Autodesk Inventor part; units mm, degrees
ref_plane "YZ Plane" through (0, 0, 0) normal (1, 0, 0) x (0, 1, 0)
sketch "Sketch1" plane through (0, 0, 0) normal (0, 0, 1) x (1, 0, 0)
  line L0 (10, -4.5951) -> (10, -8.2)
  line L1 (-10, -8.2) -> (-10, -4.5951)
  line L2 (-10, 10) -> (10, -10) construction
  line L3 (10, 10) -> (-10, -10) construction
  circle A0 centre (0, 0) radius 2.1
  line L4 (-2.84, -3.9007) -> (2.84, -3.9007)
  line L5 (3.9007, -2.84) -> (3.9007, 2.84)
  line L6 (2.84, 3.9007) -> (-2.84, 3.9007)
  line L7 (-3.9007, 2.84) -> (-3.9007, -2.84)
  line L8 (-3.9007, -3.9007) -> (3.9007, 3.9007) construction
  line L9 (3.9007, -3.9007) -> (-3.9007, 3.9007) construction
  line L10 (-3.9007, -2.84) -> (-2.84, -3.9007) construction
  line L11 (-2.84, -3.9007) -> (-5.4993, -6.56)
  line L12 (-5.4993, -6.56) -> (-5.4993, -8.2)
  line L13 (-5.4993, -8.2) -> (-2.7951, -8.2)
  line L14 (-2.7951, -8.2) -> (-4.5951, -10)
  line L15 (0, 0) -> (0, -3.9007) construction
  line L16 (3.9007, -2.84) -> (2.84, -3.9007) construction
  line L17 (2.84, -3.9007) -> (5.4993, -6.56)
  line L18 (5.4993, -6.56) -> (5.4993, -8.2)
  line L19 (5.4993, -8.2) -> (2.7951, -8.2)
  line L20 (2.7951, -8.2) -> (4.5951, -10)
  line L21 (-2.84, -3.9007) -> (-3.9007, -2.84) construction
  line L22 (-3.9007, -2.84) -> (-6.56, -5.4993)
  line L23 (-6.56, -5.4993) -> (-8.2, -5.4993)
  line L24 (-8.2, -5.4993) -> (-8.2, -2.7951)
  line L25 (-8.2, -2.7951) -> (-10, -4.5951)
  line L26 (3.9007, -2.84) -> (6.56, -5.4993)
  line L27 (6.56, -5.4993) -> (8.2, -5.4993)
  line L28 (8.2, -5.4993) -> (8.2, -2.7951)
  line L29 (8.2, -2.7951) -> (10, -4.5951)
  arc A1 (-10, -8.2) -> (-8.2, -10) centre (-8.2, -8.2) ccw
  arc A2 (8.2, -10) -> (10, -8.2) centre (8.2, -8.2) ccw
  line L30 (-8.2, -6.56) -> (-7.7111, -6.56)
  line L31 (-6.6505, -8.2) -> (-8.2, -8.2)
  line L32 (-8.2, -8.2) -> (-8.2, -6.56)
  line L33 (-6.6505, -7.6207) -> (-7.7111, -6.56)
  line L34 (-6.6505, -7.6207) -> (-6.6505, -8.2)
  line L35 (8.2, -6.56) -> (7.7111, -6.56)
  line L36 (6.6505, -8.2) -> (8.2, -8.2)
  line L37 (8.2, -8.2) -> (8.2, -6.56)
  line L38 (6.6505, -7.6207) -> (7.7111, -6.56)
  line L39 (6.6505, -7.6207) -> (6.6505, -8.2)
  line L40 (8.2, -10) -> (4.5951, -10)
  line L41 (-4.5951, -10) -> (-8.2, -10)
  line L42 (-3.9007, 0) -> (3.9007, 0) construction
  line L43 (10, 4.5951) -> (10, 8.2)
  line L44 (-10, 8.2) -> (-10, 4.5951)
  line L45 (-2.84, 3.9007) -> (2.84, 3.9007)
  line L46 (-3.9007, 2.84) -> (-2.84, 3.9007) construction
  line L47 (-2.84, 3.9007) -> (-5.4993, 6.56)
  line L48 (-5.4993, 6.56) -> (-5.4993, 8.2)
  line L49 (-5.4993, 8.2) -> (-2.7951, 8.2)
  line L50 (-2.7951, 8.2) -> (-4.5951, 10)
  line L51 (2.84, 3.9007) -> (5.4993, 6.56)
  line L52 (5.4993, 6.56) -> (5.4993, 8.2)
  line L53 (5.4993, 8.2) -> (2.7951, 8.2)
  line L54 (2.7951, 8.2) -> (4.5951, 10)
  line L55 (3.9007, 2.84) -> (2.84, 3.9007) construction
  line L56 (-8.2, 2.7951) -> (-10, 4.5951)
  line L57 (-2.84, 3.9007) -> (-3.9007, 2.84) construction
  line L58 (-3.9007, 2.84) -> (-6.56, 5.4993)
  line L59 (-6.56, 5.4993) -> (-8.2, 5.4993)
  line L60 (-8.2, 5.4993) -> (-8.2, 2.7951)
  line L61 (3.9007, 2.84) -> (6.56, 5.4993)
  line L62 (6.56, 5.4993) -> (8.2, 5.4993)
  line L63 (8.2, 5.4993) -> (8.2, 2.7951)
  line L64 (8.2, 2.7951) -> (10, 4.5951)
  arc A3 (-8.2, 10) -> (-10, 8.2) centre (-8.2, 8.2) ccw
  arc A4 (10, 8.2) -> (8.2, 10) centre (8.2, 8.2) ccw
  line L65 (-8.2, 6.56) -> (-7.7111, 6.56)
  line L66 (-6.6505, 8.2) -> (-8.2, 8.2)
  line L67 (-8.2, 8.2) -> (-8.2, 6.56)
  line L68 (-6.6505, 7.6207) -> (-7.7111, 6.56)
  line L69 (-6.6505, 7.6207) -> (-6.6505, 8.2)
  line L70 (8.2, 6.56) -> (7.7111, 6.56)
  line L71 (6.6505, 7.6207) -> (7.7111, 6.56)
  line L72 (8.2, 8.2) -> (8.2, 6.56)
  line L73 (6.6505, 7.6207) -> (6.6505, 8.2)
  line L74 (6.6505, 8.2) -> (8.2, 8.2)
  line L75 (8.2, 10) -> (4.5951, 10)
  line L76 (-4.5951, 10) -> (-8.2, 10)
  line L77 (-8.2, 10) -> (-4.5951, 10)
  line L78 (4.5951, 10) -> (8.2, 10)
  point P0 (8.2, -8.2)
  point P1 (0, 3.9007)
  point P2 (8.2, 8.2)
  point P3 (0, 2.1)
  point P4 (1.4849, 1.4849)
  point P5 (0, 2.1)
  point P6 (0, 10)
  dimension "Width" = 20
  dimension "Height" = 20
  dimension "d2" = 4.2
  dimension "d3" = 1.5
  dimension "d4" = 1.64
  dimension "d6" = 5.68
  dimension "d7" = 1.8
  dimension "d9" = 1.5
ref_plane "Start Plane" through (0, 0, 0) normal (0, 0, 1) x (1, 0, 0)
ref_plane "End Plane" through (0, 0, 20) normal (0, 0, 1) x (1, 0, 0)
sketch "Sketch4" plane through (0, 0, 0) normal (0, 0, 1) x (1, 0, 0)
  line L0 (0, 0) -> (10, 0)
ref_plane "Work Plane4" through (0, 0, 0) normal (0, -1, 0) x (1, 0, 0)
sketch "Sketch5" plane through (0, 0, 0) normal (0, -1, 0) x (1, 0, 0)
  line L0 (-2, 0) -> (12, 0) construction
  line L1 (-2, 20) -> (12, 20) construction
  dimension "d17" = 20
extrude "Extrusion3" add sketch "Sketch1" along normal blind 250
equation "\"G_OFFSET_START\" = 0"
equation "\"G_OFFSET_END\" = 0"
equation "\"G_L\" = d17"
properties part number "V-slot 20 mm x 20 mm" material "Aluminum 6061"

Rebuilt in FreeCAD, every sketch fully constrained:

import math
import FreeCAD as App
import Part
import Sketcher

V = App.Vector


def add_polygon(sketch, points):
    """Adds a closed chain of lines whose ends are joined by coincident constraints."""
    first, n = sketch.GeometryCount, len(points)
    for a, b in zip(points, points[1:] + points[:1]):
        sketch.addGeometry(Part.LineSegment(App.Vector(*a, 0), App.Vector(*b, 0)), False)
    for i in range(n):
        sketch.addConstraint(Sketcher.Constraint("Coincident", first + i, 2, first + (i + 1) % n, 1))

doc = App.newDocument("Part")
body = doc.addObject("PartDesign::Body", "Body")

# Sketch on XY plane
sketch1 = body.newObject("Sketcher::SketchObject", "Sketch")
sketch1.AttachmentSupport = (doc.getObject("XY_Plane"), [""])
sketch1.MapMode = "FlatFace"
sketch1.addGeometry(Part.LineSegment(V(10, -8.2, 0), V(10, -4.5951, 0)), False)  # 0
sketch1.addGeometry(Part.LineSegment(V(10, -4.5951, 0), V(8.2, -2.7951, 0)), False)  # 1
sketch1.addGeometry(Part.LineSegment(V(8.2, -2.7951, 0), V(8.2, -5.4993, 0)), False)  # 2
sketch1.addGeometry(Part.LineSegment(V(8.2, -5.4993, 0), V(6.56, -5.4993, 0)), False)  # 3
sketch1.addGeometry(Part.LineSegment(V(6.56, -5.4993, 0), V(3.9007, -2.84, 0)), False)  # 4
sketch1.addGeometry(Part.LineSegment(V(3.9007, -2.84, 0), V(3.9007, 2.84, 0)), False)  # 5
sketch1.addGeometry(Part.LineSegment(V(3.9007, 2.84, 0), V(6.56, 5.4993, 0)), False)  # 6
sketch1.addGeometry(Part.LineSegment(V(6.56, 5.4993, 0), V(8.2, 5.4993, 0)), False)  # 7
sketch1.addGeometry(Part.LineSegment(V(8.2, 5.4993, 0), V(8.2, 2.7951, 0)), False)  # 8
sketch1.addGeometry(Part.LineSegment(V(8.2, 2.7951, 0), V(10, 4.5951, 0)), False)  # 9
sketch1.addGeometry(Part.LineSegment(V(10, 4.5951, 0), V(10, 8.2, 0)), False)  # 10
sketch1.addGeometry(Part.ArcOfCircle(Part.Circle(V(8.2, 8.2, 0), V(0, 0, 1), 1.8), math.radians(0), math.radians(90)), False)  # 11
sketch1.addGeometry(Part.LineSegment(V(8.2, 10, 0), V(4.5951, 10, 0)), False)  # 12
sketch1.addGeometry(Part.LineSegment(V(4.5951, 10, 0), V(2.7951, 8.2, 0)), False)  # 13
sketch1.addGeometry(Part.LineSegment(V(2.7951, 8.2, 0), V(5.4993, 8.2, 0)), False)  # 14
sketch1.addGeometry(Part.LineSegment(V(5.4993, 8.2, 0), V(5.4993, 6.56, 0)), False)  # 15
sketch1.addGeometry(Part.LineSegment(V(5.4993, 6.56, 0), V(2.84, 3.9007, 0)), False)  # 16
sketch1.addGeometry(Part.LineSegment(V(2.84, 3.9007, 0), V(-2.84, 3.9007, 0)), False)  # 17
sketch1.addGeometry(Part.LineSegment(V(-2.84, 3.9007, 0), V(-5.4993, 6.56, 0)), False)  # 18
sketch1.addGeometry(Part.LineSegment(V(-5.4993, 6.56, 0), V(-5.4993, 8.2, 0)), False)  # 19
sketch1.addGeometry(Part.LineSegment(V(-5.4993, 8.2, 0), V(-2.7951, 8.2, 0)), False)  # 20
sketch1.addGeometry(Part.LineSegment(V(-2.7951, 8.2, 0), V(-4.5951, 10, 0)), False)  # 21
sketch1.addGeometry(Part.LineSegment(V(-4.5951, 10, 0), V(-8.2, 10, 0)), False)  # 22
sketch1.addGeometry(Part.ArcOfCircle(Part.Circle(V(-8.2, 8.2, 0), V(0, 0, 1), 1.8), math.radians(90), math.radians(180)), False)  # 23
sketch1.addGeometry(Part.LineSegment(V(-10, 8.2, 0), V(-10, 4.5951, 0)), False)  # 24
sketch1.addGeometry(Part.LineSegment(V(-10, 4.5951, 0), V(-8.2, 2.7951, 0)), False)  # 25
sketch1.addGeometry(Part.LineSegment(V(-8.2, 2.7951, 0), V(-8.2, 5.4993, 0)), False)  # 26
sketch1.addGeometry(Part.LineSegment(V(-8.2, 5.4993, 0), V(-6.56, 5.4993, 0)), False)  # 27
sketch1.addGeometry(Part.LineSegment(V(-6.56, 5.4993, 0), V(-3.9007, 2.84, 0)), False)  # 28
sketch1.addGeometry(Part.LineSegment(V(-3.9007, 2.84, 0), V(-3.9007, -2.84, 0)), False)  # 29
sketch1.addGeometry(Part.LineSegment(V(-3.9007, -2.84, 0), V(-6.56, -5.4993, 0)), False)  # 30
sketch1.addGeometry(Part.LineSegment(V(-6.56, -5.4993, 0), V(-8.2, -5.4993, 0)), False)  # 31
sketch1.addGeometry(Part.LineSegment(V(-8.2, -5.4993, 0), V(-8.2, -2.7951, 0)), False)  # 32
sketch1.addGeometry(Part.LineSegment(V(-8.2, -2.7951, 0), V(-10, -4.5951, 0)), False)  # 33
sketch1.addGeometry(Part.LineSegment(V(-10, -4.5951, 0), V(-10, -8.2, 0)), False)  # 34
sketch1.addGeometry(Part.ArcOfCircle(Part.Circle(V(-8.2, -8.2, 0), V(0, 0, 1), 1.8), math.radians(180), math.radians(270)), False)  # 35
sketch1.addGeometry(Part.LineSegment(V(-8.2, -10, 0), V(-4.5951, -10, 0)), False)  # 36
sketch1.addGeometry(Part.LineSegment(V(-4.5951, -10, 0), V(-2.7951, -8.2, 0)), False)  # 37
sketch1.addGeometry(Part.LineSegment(V(-2.7951, -8.2, 0), V(-5.4993, -8.2, 0)), False)  # 38
sketch1.addGeometry(Part.LineSegment(V(-5.4993, -8.2, 0), V(-5.4993, -6.56, 0)), False)  # 39
sketch1.addGeometry(Part.LineSegment(V(-5.4993, -6.56, 0), V(-2.84, -3.9007, 0)), False)  # 40
sketch1.addGeometry(Part.LineSegment(V(-2.84, -3.9007, 0), V(2.84, -3.9007, 0)), False)  # 41
sketch1.addGeometry(Part.LineSegment(V(2.84, -3.9007, 0), V(5.4993, -6.56, 0)), False)  # 42
sketch1.addGeometry(Part.LineSegment(V(5.4993, -6.56, 0), V(5.4993, -8.2, 0)), False)  # 43
sketch1.addGeometry(Part.LineSegment(V(5.4993, -8.2, 0), V(2.7951, -8.2, 0)), False)  # 44
sketch1.addGeometry(Part.LineSegment(V(2.7951, -8.2, 0), V(4.5951, -10, 0)), False)  # 45
sketch1.addGeometry(Part.LineSegment(V(4.5951, -10, 0), V(8.2, -10, 0)), False)  # 46
sketch1.addGeometry(Part.ArcOfCircle(Part.Circle(V(8.2, -8.2, 0), V(0, 0, 1), 1.8), math.radians(-90), math.radians(0)), False)  # 47
add_polygon(sketch1, [(-8.2, -8.2), (-8.2, -6.56), (-7.7111, -6.56), (-6.6505, -7.6207), (-6.6505, -8.2)])  # lines 48-52
add_polygon(sketch1, [(7.7111, -6.56), (8.2, -6.56), (8.2, -8.2), (6.6505, -8.2), (6.6505, -7.6207)])  # lines 53-57
add_polygon(sketch1, [(-7.7111, 6.56), (-8.2, 6.56), (-8.2, 8.2), (-6.6505, 8.2), (-6.6505, 7.6207)])  # lines 58-62
sketch1.addGeometry(Part.Circle(V(0, 0, 0), V(0, 0, 1), 2.1), False)  # 63
add_polygon(sketch1, [(8.2, 8.2), (8.2, 6.56), (7.7111, 6.56), (6.6505, 7.6207), (6.6505, 8.2)])  # lines 64-68
sketch1.addConstraint([
    Sketcher.Constraint("Coincident", 0, 2, 1, 1),
    Sketcher.Constraint("Coincident", 1, 2, 2, 1),
    Sketcher.Constraint("Coincident", 2, 2, 3, 1),
    Sketcher.Constraint("Coincident", 3, 2, 4, 1),
    Sketcher.Constraint("Coincident", 4, 2, 5, 1),
    Sketcher.Constraint("Coincident", 5, 2, 6, 1),
    Sketcher.Constraint("Coincident", 6, 2, 7, 1),
    Sketcher.Constraint("Coincident", 7, 2, 8, 1),
    Sketcher.Constraint("Coincident", 8, 2, 9, 1),
    Sketcher.Constraint("Coincident", 9, 2, 10, 1),
    Sketcher.Constraint("Tangent", 10, 2, 11, 1),
    Sketcher.Constraint("Tangent", 11, 2, 12, 1),
    Sketcher.Constraint("Coincident", 12, 2, 13, 1),
    Sketcher.Constraint("Coincident", 13, 2, 14, 1),
    Sketcher.Constraint("Coincident", 14, 2, 15, 1),
    Sketcher.Constraint("Coincident", 15, 2, 16, 1),
    Sketcher.Constraint("Coincident", 16, 2, 17, 1),
    Sketcher.Constraint("Coincident", 17, 2, 18, 1),
    Sketcher.Constraint("Coincident", 18, 2, 19, 1),
    Sketcher.Constraint("Coincident", 19, 2, 20, 1),
    Sketcher.Constraint("Coincident", 20, 2, 21, 1),
    Sketcher.Constraint("Coincident", 21, 2, 22, 1),
    Sketcher.Constraint("Tangent", 22, 2, 23, 1),
    Sketcher.Constraint("Tangent", 23, 2, 24, 1),
    Sketcher.Constraint("Coincident", 24, 2, 25, 1),
    Sketcher.Constraint("Coincident", 25, 2, 26, 1),
    Sketcher.Constraint("Coincident", 26, 2, 27, 1),
    Sketcher.Constraint("Coincident", 27, 2, 28, 1),
    Sketcher.Constraint("Coincident", 28, 2, 29, 1),
    Sketcher.Constraint("Coincident", 29, 2, 30, 1),
    Sketcher.Constraint("Coincident", 30, 2, 31, 1),
    Sketcher.Constraint("Coincident", 31, 2, 32, 1),
    Sketcher.Constraint("Coincident", 32, 2, 33, 1),
    Sketcher.Constraint("Coincident", 33, 2, 34, 1),
    Sketcher.Constraint("Tangent", 34, 2, 35, 1),
    Sketcher.Constraint("Tangent", 35, 2, 36, 1),
    Sketcher.Constraint("Coincident", 36, 2, 37, 1),
    Sketcher.Constraint("Coincident", 37, 2, 38, 1),
    Sketcher.Constraint("Coincident", 38, 2, 39, 1),
    Sketcher.Constraint("Coincident", 39, 2, 40, 1),
    Sketcher.Constraint("Coincident", 40, 2, 41, 1),
    Sketcher.Constraint("Coincident", 41, 2, 42, 1),
    Sketcher.Constraint("Coincident", 42, 2, 43, 1),
    Sketcher.Constraint("Coincident", 43, 2, 44, 1),
    Sketcher.Constraint("Coincident", 44, 2, 45, 1),
    Sketcher.Constraint("Coincident", 45, 2, 46, 1),
    Sketcher.Constraint("Tangent", 46, 2, 47, 1),
    Sketcher.Constraint("Tangent", 47, 2, 0, 1),
    Sketcher.Constraint("Vertical", 0),
    Sketcher.Constraint("Vertical", 2),
    Sketcher.Constraint("Horizontal", 3),
    Sketcher.Constraint("Vertical", 5),
    Sketcher.Constraint("Horizontal", 7),
    Sketcher.Constraint("Vertical", 8),
    Sketcher.Constraint("Vertical", 10),
    Sketcher.Constraint("Horizontal", 12),
    Sketcher.Constraint("Horizontal", 14),
    Sketcher.Constraint("Vertical", 15),
    Sketcher.Constraint("Horizontal", 17),
    Sketcher.Constraint("Vertical", 19),
    Sketcher.Constraint("Horizontal", 20),
    Sketcher.Constraint("Horizontal", 22),
    Sketcher.Constraint("Vertical", 24),
    Sketcher.Constraint("Vertical", 26),
    Sketcher.Constraint("Horizontal", 27),
    Sketcher.Constraint("Vertical", 29),
    Sketcher.Constraint("Horizontal", 31),
    Sketcher.Constraint("Vertical", 32),
    Sketcher.Constraint("Vertical", 34),
    Sketcher.Constraint("Horizontal", 36),
    Sketcher.Constraint("Horizontal", 38),
    Sketcher.Constraint("Vertical", 39),
    Sketcher.Constraint("Horizontal", 41),
    Sketcher.Constraint("Vertical", 43),
    Sketcher.Constraint("Horizontal", 44),
    Sketcher.Constraint("Horizontal", 46),
    Sketcher.Constraint("Vertical", 48),
    Sketcher.Constraint("Horizontal", 49),
    Sketcher.Constraint("Vertical", 51),
    Sketcher.Constraint("Horizontal", 52),
    Sketcher.Constraint("Horizontal", 53),
    Sketcher.Constraint("Vertical", 54),
    Sketcher.Constraint("Horizontal", 55),
    Sketcher.Constraint("Vertical", 56),
    Sketcher.Constraint("Horizontal", 58),
    Sketcher.Constraint("Vertical", 59),
    Sketcher.Constraint("Horizontal", 60),
    Sketcher.Constraint("Vertical", 61),
    Sketcher.Constraint("Vertical", 64),
    Sketcher.Constraint("Horizontal", 65),
    Sketcher.Constraint("Vertical", 67),
    Sketcher.Constraint("Horizontal", 68),
    Sketcher.Constraint("Coincident", 63, 3, -1, 1),
    Sketcher.Constraint("Coincident", 52, 2, 35, 3),
    Sketcher.Constraint("Coincident", 54, 2, 47, 3),
    Sketcher.Constraint("Coincident", 59, 2, 23, 3),
    Sketcher.Constraint("Coincident", 68, 2, 11, 3),
    Sketcher.Constraint("Equal", 11, 23),
    Sketcher.Constraint("Equal", 23, 35),
    Sketcher.Constraint("Equal", 35, 47),
    Sketcher.Constraint("Symmetric", 11, 3, 35, 3, -1, 1),
    Sketcher.Constraint("Symmetric", 23, 3, 47, 3, -1, 1),
    Sketcher.Constraint("Symmetric", 1, 2, 25, 2, -1, 1),
    Sketcher.Constraint("Symmetric", 3, 2, 27, 2, -1, 1),
    Sketcher.Constraint("Symmetric", 4, 2, 28, 2, -1, 1),
    Sketcher.Constraint("Symmetric", 6, 2, 30, 2, -1, 1),
    Sketcher.Constraint("Symmetric", 8, 2, 32, 2, -1, 1),
    Sketcher.Constraint("Symmetric", 13, 2, 37, 2, -1, 1),
    Sketcher.Constraint("Symmetric", 15, 2, 39, 2, -1, 1),
    Sketcher.Constraint("Symmetric", 16, 2, 40, 2, -1, 1),
    Sketcher.Constraint("Symmetric", 18, 2, 42, 2, -1, 1),
    Sketcher.Constraint("Symmetric", 20, 2, 44, 2, -1, 1),
    Sketcher.Constraint("Symmetric", 56, 2, 61, 2, -1, 1),
    Sketcher.Constraint("Symmetric", 57, 2, 62, 2, -1, 1),
    Sketcher.Constraint("Symmetric", 49, 2, 65, 2, -1, 1),
    Sketcher.Constraint("Symmetric", 50, 2, 66, 2, -1, 1),
    Sketcher.Constraint("Symmetric", 11, 3, 23, 3, -2),
    Sketcher.Constraint("Symmetric", 15, 2, 18, 2, -2),
    Sketcher.Constraint("Symmetric", 13, 2, 20, 2, -2),
    Sketcher.Constraint("Symmetric", 8, 2, 25, 2, -2),
    Sketcher.Constraint("Symmetric", 6, 2, 27, 2, -2),
    Sketcher.Constraint("Symmetric", 50, 2, 56, 2, -2),
    Sketcher.Constraint("Symmetric", 49, 2, 57, 2, -2),
    Sketcher.Constraint("Parallel", 1, 4),
    Sketcher.Constraint("Perpendicular", 4, 6),
    Sketcher.Constraint("Parallel", 6, 9),
    Sketcher.Constraint("Parallel", 9, 13),
    Sketcher.Constraint("Parallel", 13, 16),
    Sketcher.Constraint("Perpendicular", 16, 18),
    Sketcher.Constraint("Parallel", 18, 21),
    Sketcher.Constraint("Parallel", 21, 25),
    Sketcher.Constraint("Perpendicular", 28, 30),
    Sketcher.Constraint("Parallel", 30, 33),
    Sketcher.Constraint("Parallel", 33, 37),
    Sketcher.Constraint("Perpendicular", 40, 42),
    Sketcher.Constraint("Parallel", 42, 45),
    Sketcher.Constraint("Parallel", 45, 50),
    Sketcher.Constraint("Perpendicular", 50, 57),
    Sketcher.Constraint("Horizontal", 10, 2, 13, 2),
    Sketcher.Constraint("Horizontal", 42, 2, 48, 2),
    Sketcher.Constraint("Vertical", 47, 3, 1, 2),
    Sketcher.Constraint("Equal", 46, 0),
    Sketcher.Constraint("Equal", 44, 2),
    Sketcher.Constraint("Equal", 41, 5),
    Sketcher.Constraint("Equal", 31, 15),
    Sketcher.Constraint("Equal", 6, 16),
    Sketcher.Constraint("Diameter", 63, 4.2),
    Sketcher.Constraint("Radius", 11, 1.8),
    Sketcher.Constraint("Distance", 50, 1.5),
    Sketcher.Constraint("DistanceX", 3, 2, 3, 1, 1.64),
    Sketcher.Constraint("DistanceX", 17, 2, 17, 1, 5.68),
    Sketcher.Constraint("DistanceX", -1, 1, 0, 2, 10.0),
    Sketcher.Constraint("DistanceX", 12, 2, 12, 1, 3.605),
    Sketcher.Constraint("DistanceX", 49, 1, 49, 2, 0.489),
    Sketcher.Constraint("DistanceX", 14, 1, 14, 2, 2.7042),
])
pad1 = body.newObject("PartDesign::Pad", "Pad")
pad1.Profile = sketch1
pad1.Length = 250

doc.recompute()
